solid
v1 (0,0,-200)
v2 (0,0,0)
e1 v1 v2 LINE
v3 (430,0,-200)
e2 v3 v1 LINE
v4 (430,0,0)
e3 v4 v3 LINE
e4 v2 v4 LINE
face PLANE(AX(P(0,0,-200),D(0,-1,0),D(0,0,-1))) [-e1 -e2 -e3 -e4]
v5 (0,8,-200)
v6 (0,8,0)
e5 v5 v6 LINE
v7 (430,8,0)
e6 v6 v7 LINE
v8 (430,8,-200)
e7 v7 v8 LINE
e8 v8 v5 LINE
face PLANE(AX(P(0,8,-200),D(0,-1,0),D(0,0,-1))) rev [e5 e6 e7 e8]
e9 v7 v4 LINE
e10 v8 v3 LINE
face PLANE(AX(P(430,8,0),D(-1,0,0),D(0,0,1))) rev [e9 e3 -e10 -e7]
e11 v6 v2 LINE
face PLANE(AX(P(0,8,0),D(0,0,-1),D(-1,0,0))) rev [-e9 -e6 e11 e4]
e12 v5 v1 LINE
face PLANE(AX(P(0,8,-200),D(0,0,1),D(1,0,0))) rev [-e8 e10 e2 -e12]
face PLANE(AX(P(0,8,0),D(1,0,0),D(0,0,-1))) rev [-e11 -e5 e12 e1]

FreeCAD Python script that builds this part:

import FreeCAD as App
import Part
import Sketcher
from FreeCAD import Vector
Q = App.Units.Quantity


def add_polygon(sketch, points):
    """Adds a closed chain of lines whose ends are joined by coincident constraints."""
    first, n = sketch.GeometryCount, len(points)
    for a, b in zip(points, points[1:] + points[:1]):
        sketch.addGeometry(Part.LineSegment(App.Vector(*a, 0), App.Vector(*b, 0)), False)
    for i in range(n):
        sketch.addConstraint(Sketcher.Constraint("Coincident", first + i, 2, first + (i + 1) % n, 1))

doc = App.newDocument("Part")
body = doc.addObject("PartDesign::Body", "Body")

sketch1 = doc.addObject("Sketcher::SketchObject", "Sketch")
body.addObject(sketch1)
sketch1.AttachmentSupport = (doc.XZ_Plane, [""])
sketch1.MapMode = "FlatFace"
add_polygon(sketch1, [(0, -200), (0, 0), (430, 0), (430, -200)])
sketch1.addConstraint(Sketcher.Constraint("Vertical", 0))
sketch1.addConstraint(Sketcher.Constraint("Horizontal", 1))
sketch1.addConstraint(Sketcher.Constraint("Vertical", 2))
sketch1.addConstraint(Sketcher.Constraint("Horizontal", 3))
sketch1.addConstraint(Sketcher.Constraint("Coincident", 0, 2, -1, 1))
sketch1.addConstraint(Sketcher.Constraint("DistanceX", 1, 1, 1, 2, Q("430 mm")))
sketch1.addConstraint(Sketcher.Constraint("DistanceY", 0, 1, 0, 2, Q("200 mm")))
pad1 = doc.addObject("PartDesign::Pad", "Pad")
body.addObject(pad1)
pad1.Profile = sketch1
pad1.Length = 8
pad1.Reversed = True

doc.recompute()
